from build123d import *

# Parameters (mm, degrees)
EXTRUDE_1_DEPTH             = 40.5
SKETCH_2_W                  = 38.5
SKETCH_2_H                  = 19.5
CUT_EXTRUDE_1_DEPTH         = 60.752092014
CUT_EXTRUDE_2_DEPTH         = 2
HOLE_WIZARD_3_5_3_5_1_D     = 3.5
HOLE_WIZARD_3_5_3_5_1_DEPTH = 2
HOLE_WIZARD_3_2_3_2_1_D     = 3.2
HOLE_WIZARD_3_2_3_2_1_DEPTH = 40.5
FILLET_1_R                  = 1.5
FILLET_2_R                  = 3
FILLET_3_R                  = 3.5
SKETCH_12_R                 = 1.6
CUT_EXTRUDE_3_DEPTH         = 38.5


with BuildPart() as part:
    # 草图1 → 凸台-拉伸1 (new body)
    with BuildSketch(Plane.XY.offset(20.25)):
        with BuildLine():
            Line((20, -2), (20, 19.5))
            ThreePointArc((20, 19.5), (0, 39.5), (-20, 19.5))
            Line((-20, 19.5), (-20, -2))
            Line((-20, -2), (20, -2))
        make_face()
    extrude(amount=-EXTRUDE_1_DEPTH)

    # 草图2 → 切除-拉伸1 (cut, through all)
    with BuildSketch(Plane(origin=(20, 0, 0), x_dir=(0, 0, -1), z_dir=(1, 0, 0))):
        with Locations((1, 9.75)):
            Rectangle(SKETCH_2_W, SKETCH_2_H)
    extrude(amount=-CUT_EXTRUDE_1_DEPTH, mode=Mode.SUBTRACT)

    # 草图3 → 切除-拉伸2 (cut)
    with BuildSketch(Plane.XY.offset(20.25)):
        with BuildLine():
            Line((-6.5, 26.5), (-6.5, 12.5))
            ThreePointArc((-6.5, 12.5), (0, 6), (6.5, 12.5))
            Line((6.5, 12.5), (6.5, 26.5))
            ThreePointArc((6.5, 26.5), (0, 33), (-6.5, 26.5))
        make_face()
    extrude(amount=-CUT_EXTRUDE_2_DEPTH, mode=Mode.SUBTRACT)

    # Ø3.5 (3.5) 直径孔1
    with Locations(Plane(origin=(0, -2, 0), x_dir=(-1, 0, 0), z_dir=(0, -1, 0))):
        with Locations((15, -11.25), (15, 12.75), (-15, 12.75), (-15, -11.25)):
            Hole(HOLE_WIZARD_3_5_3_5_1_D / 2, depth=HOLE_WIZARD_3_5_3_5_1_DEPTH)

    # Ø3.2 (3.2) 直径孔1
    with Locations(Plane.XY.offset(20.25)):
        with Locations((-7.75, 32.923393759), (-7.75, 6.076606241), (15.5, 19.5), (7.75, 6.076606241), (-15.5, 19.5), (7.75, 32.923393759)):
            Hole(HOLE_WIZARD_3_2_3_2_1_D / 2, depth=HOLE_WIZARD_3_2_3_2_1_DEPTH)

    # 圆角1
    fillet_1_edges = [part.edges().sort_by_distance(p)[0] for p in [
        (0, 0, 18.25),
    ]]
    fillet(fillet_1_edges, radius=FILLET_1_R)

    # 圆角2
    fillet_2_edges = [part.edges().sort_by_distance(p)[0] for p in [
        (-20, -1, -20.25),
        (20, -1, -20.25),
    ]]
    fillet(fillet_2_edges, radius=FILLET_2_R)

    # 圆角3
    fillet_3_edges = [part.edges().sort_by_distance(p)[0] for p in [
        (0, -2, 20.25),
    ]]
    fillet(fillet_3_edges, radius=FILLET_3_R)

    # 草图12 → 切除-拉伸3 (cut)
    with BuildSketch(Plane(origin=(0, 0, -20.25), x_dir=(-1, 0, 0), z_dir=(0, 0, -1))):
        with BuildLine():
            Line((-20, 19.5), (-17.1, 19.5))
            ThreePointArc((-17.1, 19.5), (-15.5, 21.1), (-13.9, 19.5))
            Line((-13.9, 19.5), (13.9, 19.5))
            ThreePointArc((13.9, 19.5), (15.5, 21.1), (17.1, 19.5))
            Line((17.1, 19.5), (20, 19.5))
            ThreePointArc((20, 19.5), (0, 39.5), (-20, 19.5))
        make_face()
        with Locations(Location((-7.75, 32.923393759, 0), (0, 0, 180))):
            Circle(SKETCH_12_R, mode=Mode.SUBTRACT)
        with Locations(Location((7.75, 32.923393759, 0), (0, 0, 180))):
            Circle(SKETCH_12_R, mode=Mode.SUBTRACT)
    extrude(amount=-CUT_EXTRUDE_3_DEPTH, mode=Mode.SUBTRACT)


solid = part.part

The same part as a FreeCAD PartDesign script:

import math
import FreeCAD as App
import Part
import Sketcher


def edges_at(feature, points):
    """Names of the edges that pass closest to the given points."""
    edges = feature.Shape.Edges
    near = lambda p: min(range(len(edges)), key=lambda i: edges[i].distToShape(Part.Vertex(*p))[0])
    return sorted({f"Edge{near(p) + 1}" for p in points})


def add_polygon(sketch, points):
    """Adds a closed chain of lines whose ends are joined by coincident constraints."""
    first, n = sketch.GeometryCount, len(points)
    for a, b in zip(points, points[1:] + points[:1]):
        sketch.addGeometry(Part.LineSegment(App.Vector(*a, 0), App.Vector(*b, 0)), False)
    for i in range(n):
        sketch.addConstraint(Sketcher.Constraint("Coincident", first + i, 2, first + (i + 1) % n, 1))

doc = App.newDocument("Part")
params = doc.addObject("Spreadsheet::Sheet", "Params")
for row, (alias, value) in enumerate([
    ("sketch1_radius", "20 mm"),
    ("sketch1_height", "21.5 mm"),
    ("pad1_length", "40.5 mm"),
    ("sketch2_width", "19.5 mm"),
    ("sketch2_height", "38.5 mm"),
    ("sketch3_radius", "6.5 mm"),
    ("sketch3_height", "14 mm"),
    ("pocket2_length", "2 mm"),
    ("sketch4_diameter", "3.5 mm"),
    ("hole_diameter", "3.5 mm"),
    ("hole_depth", "2 mm"),
    ("sketch5_diameter", "3.2 mm"),
    ("hole2_diameter", "3.2 mm"),
    ("hole2_depth", "40.5 mm"),
    ("fillet_radius", "1.5 mm"),
    ("fillet2_radius", "3 mm"),
    ("fillet3_radius", "3.5 mm"),
    ("sketch6_radius", "20 mm"),
    ("sketch6_diameter", "3.2 mm"),
    ("sketch6_width", "2.9 mm"),
    ("pocket3_length", "38.5 mm"),
], start=1):
    params.set(f"A{row}", alias)
    params.set(f"B{row}", "=" + value)
    params.setAlias(f"B{row}", alias)

body = doc.addObject("PartDesign::Body", "Body")

sketch1 = body.newObject("Sketcher::SketchObject", "Sketch")
sketch1.AttachmentSupport = (doc.getObject("XY_Plane"), [""])
sketch1.MapMode = "FlatFace"
sketch1.AttachmentOffset = App.Placement(App.Vector(0, 0, 20.25), App.Rotation())
sketch1.addGeometry([
    Part.LineSegment(App.Vector(20, -2, 0), App.Vector(20, 20, 0)),
    Part.ArcOfCircle(Part.Circle(App.Vector(0, 20, 0), App.Vector(0, 0, 1), 20), math.radians(0), math.radians(180)),
    Part.LineSegment(App.Vector(-20, 20, 0), App.Vector(-20, -2, 0)),
    Part.LineSegment(App.Vector(-20, -2, 0), App.Vector(20, -2, 0)),
], False)
sketch1.addConstraint([
    Sketcher.Constraint("Tangent", 0, 2, 1, 1),
    Sketcher.Constraint("Tangent", 1, 2, 2, 1),
    Sketcher.Constraint("Coincident", 2, 2, 3, 1),
    Sketcher.Constraint("Coincident", 3, 2, 0, 1),
    Sketcher.Constraint("Vertical", 0),
    Sketcher.Constraint("Vertical", 2),
    Sketcher.Constraint("Horizontal", 3),
    Sketcher.Constraint("PointOnObject", 1, 3, -2),
    Sketcher.Constraint("Radius", 1, 20.0),
    Sketcher.Constraint("DistanceY", 0, 1, 0, 2, 21.5),
    Sketcher.Constraint("DistanceY", 2, 2, -1, 1, 2.0),
])
sketch1.setExpression("Constraints[8]", "Params.sketch1_radius")
sketch1.setExpression("Constraints[9]", "Params.sketch1_height")
pad1 = body.newObject("PartDesign::Pad", "Pad")
pad1.Profile = sketch1
pad1.setExpression("Length", "Params.pad1_length")
pad1.Reversed = True

sketch2 = body.newObject("Sketcher::SketchObject", "Sketch001")
sketch2.AttachmentSupport = (doc.getObject("YZ_Plane"), [""])
sketch2.MapMode = "FlatFace"
sketch2.AttachmentOffset = App.Placement(App.Vector(0, 0, 20), App.Rotation())
add_polygon(sketch2, [(20, 18), (0, 18), (0, -20), (20, -20)])
sketch2.addConstraint([
    Sketcher.Constraint("Horizontal", 0),
    Sketcher.Constraint("Vertical", 1),
    Sketcher.Constraint("Horizontal", 2),
    Sketcher.Constraint("Vertical", 3),
    Sketcher.Constraint("PointOnObject", 0, 2, -2),
    Sketcher.Constraint("DistanceX", 0, 2, 0, 1, 19.5),
    Sketcher.Constraint("DistanceY", 1, 2, 1, 1, 38.5),
    Sketcher.Constraint("DistanceY", -1, 1, 0, 2, 18.25),
])
sketch2.setExpression("Constraints[9]", "Params.sketch2_width")
sketch2.setExpression("Constraints[10]", "Params.sketch2_height")
pocket1 = body.newObject("PartDesign::Pocket", "Pocket")
pocket1.Profile = sketch2
pocket1.Type = "ThroughAll"

sketch3 = body.newObject("Sketcher::SketchObject", "Sketch002")
sketch3.AttachmentSupport = (doc.getObject("XY_Plane"), [""])
sketch3.MapMode = "FlatFace"
sketch3.AttachmentOffset = App.Placement(App.Vector(0, 0, 20.25), App.Rotation())
sketch3.addGeometry([
    Part.LineSegment(App.Vector(-6, 26, 0), App.Vector(-6, 12, 0)),
    Part.ArcOfCircle(Part.Circle(App.Vector(0, 12, 0), App.Vector(0, 0, 1), 6), math.radians(180), math.radians(360)),
    Part.LineSegment(App.Vector(6, 12, 0), App.Vector(6, 26, 0)),
    Part.ArcOfCircle(Part.Circle(App.Vector(0, 26, 0), App.Vector(0, 0, 1), 6), math.radians(0), math.radians(180)),
], False)
sketch3.addConstraint([
    Sketcher.Constraint("Tangent", 0, 2, 1, 1),
    Sketcher.Constraint("Tangent", 1, 2, 2, 1),
    Sketcher.Constraint("Tangent", 2, 2, 3, 1),
    Sketcher.Constraint("Tangent", 3, 2, 0, 1),
    Sketcher.Constraint("Vertical", 0),
    Sketcher.Constraint("Vertical", 2),
    Sketcher.Constraint("PointOnObject", 1, 3, -2),
    Sketcher.Constraint("Radius", 1, 6.5),
    Sketcher.Constraint("DistanceY", 0, 2, 0, 1, 14.0),
    Sketcher.Constraint("DistanceY", -1, 1, 1, 3, 12.5),
])
sketch3.setExpression("Constraints[7]", "Params.sketch3_radius")
sketch3.setExpression("Constraints[8]", "Params.sketch3_height")
pocket2 = body.newObject("PartDesign::Pocket", "Pocket001")
pocket2.Profile = sketch3
pocket2.setExpression("Length", "Params.pocket2_length")

sketch4 = body.newObject("Sketcher::SketchObject", "Sketch003")
sketch4.AttachmentSupport = (doc.getObject("XZ_Plane"), [""])
sketch4.MapMode = "FlatFace"
sketch4.AttachmentOffset = App.Placement(App.Vector(0, 0, 2), App.Rotation())
sketch4.addGeometry([
    Part.Circle(App.Vector(-15, 11.2, 0), App.Vector(0, 0, 1), 1.8),
    Part.Circle(App.Vector(-15, -12.8, 0), App.Vector(0, 0, 1), 1.8),
    Part.Circle(App.Vector(15, -12.8, 0), App.Vector(0, 0, 1), 1.8),
    Part.Circle(App.Vector(15, 11.2, 0), App.Vector(0, 0, 1), 1.8),
], False)
sketch4.addConstraint([
    Sketcher.Constraint("Equal", 0, 1),
    Sketcher.Constraint("Equal", 1, 2),
    Sketcher.Constraint("Equal", 2, 3),
    Sketcher.Constraint("Symmetric", 1, 3, 2, 3, -2),
    Sketcher.Constraint("Symmetric", 0, 3, 3, 3, -2),
    Sketcher.Constraint("Vertical", 0, 3, 1, 3),
    Sketcher.Constraint("Diameter", 0, 3.5),
    Sketcher.Constraint("DistanceX", 0, 3, -1, 1, 15.0),
    Sketcher.Constraint("DistanceY", 1, 3, 0, 3, 24.0),
    Sketcher.Constraint("DistanceY", -1, 1, 0, 3, 11.25),
])
sketch4.setExpression("Constraints[6]", "Params.sketch4_diameter")
doc.recompute()
hole = body.newObject("PartDesign::Hole", "Hole")
hole.Profile = sketch4
hole.ThreadType = "None"
hole.setExpression("Diameter", "Params.hole_diameter")
hole.DepthType = "Dimension"
hole.setExpression("Depth", "Params.hole_depth")
hole.DrillPoint = "Flat"

sketch5 = body.newObject("Sketcher::SketchObject", "Sketch004")
sketch5.AttachmentSupport = (doc.getObject("XY_Plane"), [""])
sketch5.MapMode = "FlatFace"
sketch5.AttachmentOffset = App.Placement(App.Vector(0, 0, 20.25), App.Rotation())
sketch5.addGeometry([
    Part.Circle(App.Vector(-7.8, 32.9, 0), App.Vector(0, 0, 1), 1.6),
    Part.Circle(App.Vector(-7.8, 6.1, 0), App.Vector(0, 0, 1), 1.6),
    Part.Circle(App.Vector(15.5, 19.5, 0), App.Vector(0, 0, 1), 1.6),
    Part.Circle(App.Vector(7.8, 6.1, 0), App.Vector(0, 0, 1), 1.6),
    Part.Circle(App.Vector(-15.5, 19.5, 0), App.Vector(0, 0, 1), 1.6),
    Part.Circle(App.Vector(7.8, 32.9, 0), App.Vector(0, 0, 1), 1.6),
], False)
sketch5.addConstraint([
    Sketcher.Constraint("Equal", 0, 1),
    Sketcher.Constraint("Equal", 1, 2),
    Sketcher.Constraint("Equal", 2, 3),
    Sketcher.Constraint("Equal", 3, 4),
    Sketcher.Constraint("Equal", 4, 5),
    Sketcher.Constraint("Symmetric", 1, 3, 3, 3, -2),
    Sketcher.Constraint("Symmetric", 2, 3, 4, 3, -2),
    Sketcher.Constraint("Symmetric", 0, 3, 5, 3, -2),
    Sketcher.Constraint("Vertical", 0, 3, 1, 3),
    Sketcher.Constraint("Diameter", 0, 3.2),
    Sketcher.Constraint("DistanceX", 4, 3, 2, 3, 31.0),
    Sketcher.Constraint("DistanceY", -1, 1, 2, 3, 19.5),
    Sketcher.Constraint("DistanceX", 1, 3, 3, 3, 15.5),
    Sketcher.Constraint("DistanceY", -1, 1, 0, 3, 32.923394),
    Sketcher.Constraint("DistanceY", -1, 1, 1, 3, 6.076606),
])
sketch5.setExpression("Constraints[9]", "Params.sketch5_diameter")
doc.recompute()
hole2 = body.newObject("PartDesign::Hole", "Hole001")
hole2.Profile = sketch5
hole2.ThreadType = "None"
hole2.setExpression("Diameter", "Params.hole2_diameter")
hole2.DepthType = "Dimension"
hole2.setExpression("Depth", "Params.hole2_depth")
hole2.DrillPoint = "Flat"
doc.recompute()

fillet = body.newObject("PartDesign::Fillet", "Fillet")
fillet.Base = (hole2, edges_at(hole2, [(0, 0, 18.25)]))
fillet.setExpression("Radius", "Params.fillet_radius")
doc.recompute()

fillet2 = body.newObject("PartDesign::Fillet", "Fillet001")
fillet2.Base = (fillet, edges_at(fillet, [(-20, -1, -20.25), (20, -1, -20.25)]))
fillet2.setExpression("Radius", "Params.fillet2_radius")
doc.recompute()

fillet3 = body.newObject("PartDesign::Fillet", "Fillet002")
fillet3.Base = (fillet2, edges_at(fillet2, [(0, -2, 20.25)]))
fillet3.setExpression("Radius", "Params.fillet3_radius")

sketch6 = body.newObject("Sketcher::SketchObject", "Sketch005")
sketch6.AttachmentSupport = (doc.getObject("XY_Plane"), [""])
sketch6.MapMode = "FlatFace"
sketch6.AttachmentOffset = App.Placement(App.Vector(0, 0, -20.25), App.Rotation())
sketch6.addGeometry([
    Part.LineSegment(App.Vector(20, 19.5, 0), App.Vector(17.1, 19.5, 0)),
    Part.ArcOfCircle(Part.Circle(App.Vector(15.5, 19.5, 0), App.Vector(0, 0, 1), 1.6), math.radians(0), math.radians(180)),
    Part.LineSegment(App.Vector(13.9, 19.5, 0), App.Vector(-13.9, 19.5, 0)),
    Part.ArcOfCircle(Part.Circle(App.Vector(-15.5, 19.5, 0), App.Vector(0, 0, 1), 1.6), math.radians(0), math.radians(180)),
    Part.LineSegment(App.Vector(-17.1, 19.5, 0), App.Vector(-20, 19.5, 0)),
    Part.ArcOfCircle(Part.Circle(App.Vector(0, 19.5, 0), App.Vector(0, 0, 1), 20), math.radians(0), math.radians(180)),
    Part.Circle(App.Vector(7.8, 32.9, 0), App.Vector(0, 0, 1), 1.6),
    Part.Circle(App.Vector(-7.8, 32.9, 0), App.Vector(0, 0, 1), 1.6),
], False)
sketch6.addConstraint([
    Sketcher.Constraint("Coincident", 0, 2, 1, 1),
    Sketcher.Constraint("Coincident", 1, 2, 2, 1),
    Sketcher.Constraint("Coincident", 2, 2, 3, 1),
    Sketcher.Constraint("Coincident", 3, 2, 4, 1),
    Sketcher.Constraint("Coincident", 4, 2, 5, 2),
    Sketcher.Constraint("Coincident", 5, 1, 0, 1),
    Sketcher.Constraint("Horizontal", 0),
    Sketcher.Constraint("Horizontal", 2),
    Sketcher.Constraint("Horizontal", 4),
    Sketcher.Constraint("Equal", 1, 3),
    Sketcher.Constraint("Equal", 3, 6),
    Sketcher.Constraint("Equal", 6, 7),
    Sketcher.Constraint("Symmetric", 1, 3, 3, 3, -2),
    Sketcher.Constraint("Symmetric", 6, 3, 7, 3, -2),
    Sketcher.Constraint("Symmetric", 4, 2, 5, 1, -2),
    Sketcher.Constraint("Horizontal", 3, 3, 5, 3),
    Sketcher.Constraint("Horizontal", 5, 3, 0, 2),
    Sketcher.Constraint("Horizontal", 0, 2, 1, 2),
    Sketcher.Constraint("Radius", 5, 20.0),
    Sketcher.Constraint("Diameter", 6, 3.2),
    Sketcher.Constraint("DistanceX", 0, 2, 0, 1, 2.9),
    Sketcher.Constraint("DistanceY", -1, 1, 1, 3, 19.5),
    Sketcher.Constraint("DistanceX", 7, 3, 6, 3, 15.5),
    Sketcher.Constraint("DistanceY", -1, 1, 6, 3, 32.923394),
])
sketch6.setExpression("Constraints[18]", "Params.sketch6_radius")
sketch6.setExpression("Constraints[19]", "Params.sketch6_diameter")
sketch6.setExpression("Constraints[20]", "Params.sketch6_width")
pocket3 = body.newObject("PartDesign::Pocket", "Pocket002")
pocket3.Profile = sketch6
pocket3.setExpression("Length", "Params.pocket3_length")
pocket3.Reversed = True

doc.recompute()
